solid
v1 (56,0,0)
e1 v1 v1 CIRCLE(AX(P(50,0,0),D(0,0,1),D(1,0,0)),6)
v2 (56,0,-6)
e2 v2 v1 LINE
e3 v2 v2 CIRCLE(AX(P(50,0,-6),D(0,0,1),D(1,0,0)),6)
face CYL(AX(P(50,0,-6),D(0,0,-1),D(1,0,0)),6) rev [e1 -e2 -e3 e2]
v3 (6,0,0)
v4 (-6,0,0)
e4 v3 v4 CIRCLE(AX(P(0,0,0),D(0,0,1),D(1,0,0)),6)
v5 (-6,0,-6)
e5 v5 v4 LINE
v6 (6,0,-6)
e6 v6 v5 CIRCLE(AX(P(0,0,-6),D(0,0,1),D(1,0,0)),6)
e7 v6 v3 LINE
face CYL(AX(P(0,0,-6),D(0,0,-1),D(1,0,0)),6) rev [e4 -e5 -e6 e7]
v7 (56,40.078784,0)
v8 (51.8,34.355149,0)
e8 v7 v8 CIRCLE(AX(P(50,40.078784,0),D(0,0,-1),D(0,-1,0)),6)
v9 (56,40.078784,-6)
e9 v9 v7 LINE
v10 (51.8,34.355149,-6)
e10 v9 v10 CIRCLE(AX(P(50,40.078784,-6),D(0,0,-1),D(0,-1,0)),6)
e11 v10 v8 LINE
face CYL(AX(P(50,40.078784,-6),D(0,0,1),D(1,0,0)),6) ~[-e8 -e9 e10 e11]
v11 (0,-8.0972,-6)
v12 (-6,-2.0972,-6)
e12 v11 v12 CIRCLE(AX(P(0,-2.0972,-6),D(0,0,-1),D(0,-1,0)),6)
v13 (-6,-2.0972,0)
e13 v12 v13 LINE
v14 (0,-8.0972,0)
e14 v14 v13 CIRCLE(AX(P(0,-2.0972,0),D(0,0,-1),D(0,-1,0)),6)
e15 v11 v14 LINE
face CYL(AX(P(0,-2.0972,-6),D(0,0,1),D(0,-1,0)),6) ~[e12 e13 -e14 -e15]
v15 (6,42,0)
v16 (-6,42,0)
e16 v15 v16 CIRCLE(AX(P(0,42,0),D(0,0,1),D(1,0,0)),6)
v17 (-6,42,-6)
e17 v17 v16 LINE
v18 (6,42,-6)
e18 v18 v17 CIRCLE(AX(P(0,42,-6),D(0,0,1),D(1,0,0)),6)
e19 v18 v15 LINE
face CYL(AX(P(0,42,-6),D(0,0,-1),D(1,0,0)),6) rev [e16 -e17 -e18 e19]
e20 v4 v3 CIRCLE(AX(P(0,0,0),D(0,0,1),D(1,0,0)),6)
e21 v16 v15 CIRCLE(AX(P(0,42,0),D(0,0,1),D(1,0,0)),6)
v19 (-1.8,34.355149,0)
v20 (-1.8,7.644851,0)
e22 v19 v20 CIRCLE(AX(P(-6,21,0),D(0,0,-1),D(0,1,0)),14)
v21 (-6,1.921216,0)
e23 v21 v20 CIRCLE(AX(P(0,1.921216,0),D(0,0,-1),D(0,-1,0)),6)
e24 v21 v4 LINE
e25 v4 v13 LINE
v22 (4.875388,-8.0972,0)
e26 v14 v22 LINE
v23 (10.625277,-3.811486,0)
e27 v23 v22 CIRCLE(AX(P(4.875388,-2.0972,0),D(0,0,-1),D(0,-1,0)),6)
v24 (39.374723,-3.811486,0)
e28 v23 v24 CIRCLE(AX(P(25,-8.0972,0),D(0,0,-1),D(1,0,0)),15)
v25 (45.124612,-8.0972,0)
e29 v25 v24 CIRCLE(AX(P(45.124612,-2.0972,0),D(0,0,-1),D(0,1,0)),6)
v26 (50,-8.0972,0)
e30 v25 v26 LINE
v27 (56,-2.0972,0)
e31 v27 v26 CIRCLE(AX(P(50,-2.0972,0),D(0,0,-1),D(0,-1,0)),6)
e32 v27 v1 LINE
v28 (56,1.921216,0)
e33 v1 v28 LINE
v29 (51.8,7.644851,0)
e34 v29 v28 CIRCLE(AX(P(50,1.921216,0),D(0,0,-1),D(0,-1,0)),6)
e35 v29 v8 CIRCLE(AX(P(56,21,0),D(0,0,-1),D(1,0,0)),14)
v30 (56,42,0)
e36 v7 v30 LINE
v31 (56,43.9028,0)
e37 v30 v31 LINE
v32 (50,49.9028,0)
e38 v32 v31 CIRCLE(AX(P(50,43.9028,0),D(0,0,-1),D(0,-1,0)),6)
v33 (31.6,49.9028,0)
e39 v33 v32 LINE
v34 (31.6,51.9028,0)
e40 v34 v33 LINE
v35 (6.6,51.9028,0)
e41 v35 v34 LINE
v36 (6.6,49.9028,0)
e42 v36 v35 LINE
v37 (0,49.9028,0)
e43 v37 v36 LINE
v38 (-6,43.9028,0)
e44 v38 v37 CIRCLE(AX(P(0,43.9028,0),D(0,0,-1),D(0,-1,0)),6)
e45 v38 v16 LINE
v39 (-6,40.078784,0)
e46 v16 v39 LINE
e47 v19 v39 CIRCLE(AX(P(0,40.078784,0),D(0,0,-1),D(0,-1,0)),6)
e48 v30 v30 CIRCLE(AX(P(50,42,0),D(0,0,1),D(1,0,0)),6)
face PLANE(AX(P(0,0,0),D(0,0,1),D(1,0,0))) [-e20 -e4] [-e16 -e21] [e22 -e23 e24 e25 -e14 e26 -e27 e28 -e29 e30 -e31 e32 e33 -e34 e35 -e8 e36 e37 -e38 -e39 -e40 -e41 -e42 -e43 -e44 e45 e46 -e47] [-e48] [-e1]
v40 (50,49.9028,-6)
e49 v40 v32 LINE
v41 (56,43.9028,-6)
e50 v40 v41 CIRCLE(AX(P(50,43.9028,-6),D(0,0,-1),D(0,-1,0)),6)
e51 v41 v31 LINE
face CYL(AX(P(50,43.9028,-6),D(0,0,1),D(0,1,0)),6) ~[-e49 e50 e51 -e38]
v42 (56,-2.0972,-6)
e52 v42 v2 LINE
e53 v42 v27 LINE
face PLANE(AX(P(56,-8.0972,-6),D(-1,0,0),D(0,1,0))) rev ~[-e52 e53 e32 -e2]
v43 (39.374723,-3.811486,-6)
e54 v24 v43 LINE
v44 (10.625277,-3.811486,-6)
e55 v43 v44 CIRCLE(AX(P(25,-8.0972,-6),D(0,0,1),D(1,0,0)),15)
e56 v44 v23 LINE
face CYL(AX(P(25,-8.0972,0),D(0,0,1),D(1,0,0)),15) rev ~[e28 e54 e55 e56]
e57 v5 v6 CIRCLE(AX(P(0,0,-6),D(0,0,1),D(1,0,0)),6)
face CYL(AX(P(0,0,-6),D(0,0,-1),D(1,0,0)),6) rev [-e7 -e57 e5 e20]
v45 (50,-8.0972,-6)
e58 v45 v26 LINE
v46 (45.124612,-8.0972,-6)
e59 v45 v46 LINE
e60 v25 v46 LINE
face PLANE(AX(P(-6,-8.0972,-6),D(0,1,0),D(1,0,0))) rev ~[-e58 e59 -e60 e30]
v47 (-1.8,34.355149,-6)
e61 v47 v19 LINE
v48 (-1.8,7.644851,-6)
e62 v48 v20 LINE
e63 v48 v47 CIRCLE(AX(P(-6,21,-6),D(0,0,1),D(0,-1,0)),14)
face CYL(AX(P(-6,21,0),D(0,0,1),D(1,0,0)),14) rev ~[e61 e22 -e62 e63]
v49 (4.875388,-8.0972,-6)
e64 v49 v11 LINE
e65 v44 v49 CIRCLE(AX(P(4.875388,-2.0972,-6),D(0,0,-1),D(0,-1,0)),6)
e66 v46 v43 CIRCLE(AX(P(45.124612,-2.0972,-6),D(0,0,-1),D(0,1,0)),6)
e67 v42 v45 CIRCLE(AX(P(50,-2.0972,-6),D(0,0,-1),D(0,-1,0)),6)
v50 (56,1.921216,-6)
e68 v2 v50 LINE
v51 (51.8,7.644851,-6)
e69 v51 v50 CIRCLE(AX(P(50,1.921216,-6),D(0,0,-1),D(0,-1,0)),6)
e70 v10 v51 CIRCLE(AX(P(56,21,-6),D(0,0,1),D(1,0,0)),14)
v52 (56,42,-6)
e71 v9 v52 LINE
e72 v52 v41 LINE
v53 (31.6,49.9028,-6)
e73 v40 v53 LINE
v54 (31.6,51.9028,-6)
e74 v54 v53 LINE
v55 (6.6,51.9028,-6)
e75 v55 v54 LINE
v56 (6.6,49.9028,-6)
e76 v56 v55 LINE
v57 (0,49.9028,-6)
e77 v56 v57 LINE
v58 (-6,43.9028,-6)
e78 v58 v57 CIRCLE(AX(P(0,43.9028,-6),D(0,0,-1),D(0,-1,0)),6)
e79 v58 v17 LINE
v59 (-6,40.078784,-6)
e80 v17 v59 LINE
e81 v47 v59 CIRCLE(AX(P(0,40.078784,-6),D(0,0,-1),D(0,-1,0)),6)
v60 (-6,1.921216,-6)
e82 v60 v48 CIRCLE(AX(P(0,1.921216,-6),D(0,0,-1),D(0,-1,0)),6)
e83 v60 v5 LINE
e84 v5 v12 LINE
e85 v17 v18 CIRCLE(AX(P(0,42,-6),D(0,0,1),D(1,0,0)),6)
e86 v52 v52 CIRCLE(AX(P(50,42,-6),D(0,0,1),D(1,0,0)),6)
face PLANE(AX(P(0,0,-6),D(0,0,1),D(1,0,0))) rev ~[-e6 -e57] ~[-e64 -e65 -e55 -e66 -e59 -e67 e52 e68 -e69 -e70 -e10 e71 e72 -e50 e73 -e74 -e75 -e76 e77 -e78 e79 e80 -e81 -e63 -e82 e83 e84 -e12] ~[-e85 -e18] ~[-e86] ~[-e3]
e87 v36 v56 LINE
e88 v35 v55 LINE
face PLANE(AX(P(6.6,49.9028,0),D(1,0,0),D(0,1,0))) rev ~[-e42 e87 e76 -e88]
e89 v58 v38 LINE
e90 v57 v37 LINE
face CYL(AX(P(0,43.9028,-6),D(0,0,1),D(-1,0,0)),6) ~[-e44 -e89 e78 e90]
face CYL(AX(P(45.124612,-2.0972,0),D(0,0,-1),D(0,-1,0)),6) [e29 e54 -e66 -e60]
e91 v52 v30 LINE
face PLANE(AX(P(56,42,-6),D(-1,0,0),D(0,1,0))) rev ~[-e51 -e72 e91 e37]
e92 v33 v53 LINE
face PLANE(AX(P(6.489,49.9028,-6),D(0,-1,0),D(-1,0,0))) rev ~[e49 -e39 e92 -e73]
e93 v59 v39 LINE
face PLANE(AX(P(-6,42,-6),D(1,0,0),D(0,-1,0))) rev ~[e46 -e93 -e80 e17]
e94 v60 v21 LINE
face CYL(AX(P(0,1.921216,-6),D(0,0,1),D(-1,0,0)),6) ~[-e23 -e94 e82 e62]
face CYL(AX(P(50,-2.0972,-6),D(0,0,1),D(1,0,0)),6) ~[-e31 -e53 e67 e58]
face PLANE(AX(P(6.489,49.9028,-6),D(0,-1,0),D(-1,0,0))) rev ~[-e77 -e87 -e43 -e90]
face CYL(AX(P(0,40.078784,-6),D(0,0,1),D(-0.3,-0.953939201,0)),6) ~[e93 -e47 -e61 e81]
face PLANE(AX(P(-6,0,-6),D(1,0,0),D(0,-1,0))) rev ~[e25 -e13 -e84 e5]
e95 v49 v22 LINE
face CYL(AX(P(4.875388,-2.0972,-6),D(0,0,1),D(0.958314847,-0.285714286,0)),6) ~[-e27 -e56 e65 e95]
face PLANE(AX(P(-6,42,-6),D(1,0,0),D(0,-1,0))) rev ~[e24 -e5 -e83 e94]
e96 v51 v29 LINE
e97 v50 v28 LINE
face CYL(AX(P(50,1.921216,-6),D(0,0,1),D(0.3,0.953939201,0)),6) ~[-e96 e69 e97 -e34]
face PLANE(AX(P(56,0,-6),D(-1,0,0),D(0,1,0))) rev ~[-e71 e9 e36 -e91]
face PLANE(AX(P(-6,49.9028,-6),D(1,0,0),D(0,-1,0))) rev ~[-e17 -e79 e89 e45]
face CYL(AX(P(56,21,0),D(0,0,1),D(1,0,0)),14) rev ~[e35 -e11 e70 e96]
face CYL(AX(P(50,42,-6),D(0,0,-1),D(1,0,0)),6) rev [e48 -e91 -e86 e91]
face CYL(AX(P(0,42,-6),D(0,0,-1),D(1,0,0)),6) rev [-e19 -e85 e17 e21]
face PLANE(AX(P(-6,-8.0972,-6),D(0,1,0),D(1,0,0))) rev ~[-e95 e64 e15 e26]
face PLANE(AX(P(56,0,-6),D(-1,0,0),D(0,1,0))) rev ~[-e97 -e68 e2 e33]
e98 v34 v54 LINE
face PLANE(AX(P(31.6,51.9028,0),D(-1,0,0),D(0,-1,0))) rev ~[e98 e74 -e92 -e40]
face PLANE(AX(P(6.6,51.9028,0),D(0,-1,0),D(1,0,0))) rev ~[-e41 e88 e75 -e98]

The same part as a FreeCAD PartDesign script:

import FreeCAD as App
import Part
import Sketcher

V = App.Vector
Q = App.Units.Quantity


def edges_at(feature, points):
    """Names of the edges that pass closest to the given points."""
    edges = feature.Shape.Edges
    near = lambda p: min(range(len(edges)), key=lambda i: edges[i].distToShape(Part.Vertex(*p))[0])
    return sorted({f"Edge{near(p) + 1}" for p in points})

doc = App.newDocument("Part")
body = doc.addObject("PartDesign::Body", "Body")

sketch1 = body.newObject("Sketcher::SketchObject", "Sketch")
sketch1.AttachmentSupport = (doc.getObject("XY_Plane"), [""])
sketch1.MapMode = "FlatFace"
sketch1.AttachmentOffset = App.Placement(V(0, 0, -6), App.Rotation())
sketch1.addGeometry(Part.LineSegment(V(-6, 42, 0), V(-6, 0, 0)), False)
sketch1.addGeometry(Part.LineSegment(V(-6, 0, 0), V(-6, -8, 0)), False)
sketch1.addGeometry(Part.LineSegment(V(-6, -8, 0), V(56, -8, 0)), False)
sketch1.addGeometry(Part.LineSegment(V(56, -8, 0), V(56, 0, 0)), False)
sketch1.addGeometry(Part.LineSegment(V(56, 0, 0), V(56, 42, 0)), False)
sketch1.addGeometry(Part.LineSegment(V(56, 42, 0), V(56, 50, 0)), False)
sketch1.addGeometry(Part.LineSegment(V(56, 50, 0), V(-6, 50, 0)), False)
sketch1.addGeometry(Part.LineSegment(V(-6, 50, 0), V(-6, 42, 0)), False)
sketch1.addGeometry(Part.Circle(V(0, 42, 0), V(0, 0, 1), 6), False)
sketch1.addGeometry(Part.Circle(V(50, 0, 0), V(0, 0, 1), 6), False)
sketch1.addGeometry(Part.Circle(V(50, 42, 0), V(0, 0, 1), 6), False)
sketch1.addGeometry(Part.Circle(V(0, 0, 0), V(0, 0, 1), 6), False)
sketch1.addConstraint(Sketcher.Constraint("Coincident", 0, 2, 1, 1))
sketch1.addConstraint(Sketcher.Constraint("Coincident", 1, 2, 2, 1))
sketch1.addConstraint(Sketcher.Constraint("Coincident", 2, 2, 3, 1))
sketch1.addConstraint(Sketcher.Constraint("Coincident", 3, 2, 4, 1))
sketch1.addConstraint(Sketcher.Constraint("Coincident", 4, 2, 5, 1))
sketch1.addConstraint(Sketcher.Constraint("Coincident", 5, 2, 6, 1))
sketch1.addConstraint(Sketcher.Constraint("Coincident", 6, 2, 7, 1))
sketch1.addConstraint(Sketcher.Constraint("Coincident", 7, 2, 0, 1))
sketch1.addConstraint(Sketcher.Constraint("Vertical", 0))
sketch1.addConstraint(Sketcher.Constraint("Vertical", 1))
sketch1.addConstraint(Sketcher.Constraint("Horizontal", 2))
sketch1.addConstraint(Sketcher.Constraint("Vertical", 3))
sketch1.addConstraint(Sketcher.Constraint("Vertical", 4))
sketch1.addConstraint(Sketcher.Constraint("Vertical", 5))
sketch1.addConstraint(Sketcher.Constraint("Horizontal", 6))
sketch1.addConstraint(Sketcher.Constraint("Vertical", 7))
sketch1.addConstraint(Sketcher.Constraint("Coincident", 11, 3, -1, 1))
sketch1.addConstraint(Sketcher.Constraint("Equal", 8, 9))
sketch1.addConstraint(Sketcher.Constraint("Equal", 9, 10))
sketch1.addConstraint(Sketcher.Constraint("Equal", 10, 11))
sketch1.addConstraint(Sketcher.Constraint("PointOnObject", 8, 3, -2))
sketch1.addConstraint(Sketcher.Constraint("PointOnObject", 9, 3, -1))
sketch1.addConstraint(Sketcher.Constraint("PointOnObject", 0, 2, -1))
sketch1.addConstraint(Sketcher.Constraint("PointOnObject", 3, 2, -1))
sketch1.addConstraint(Sketcher.Constraint("Horizontal", 8, 3, 10, 3))
sketch1.addConstraint(Sketcher.Constraint("Horizontal", 10, 3, 4, 2))
sketch1.addConstraint(Sketcher.Constraint("Horizontal", 4, 2, 7, 2))
sketch1.addConstraint(Sketcher.Constraint("Vertical", 9, 3, 10, 3))
sketch1.addConstraint(Sketcher.Constraint("Diameter", 8, Q("12 mm")))
sketch1.addConstraint(Sketcher.Constraint("DistanceX", 2, 1, 2, 2, Q("62 mm")))
sketch1.addConstraint(Sketcher.Constraint("DistanceY", 0, 2, 0, 1, Q("42 mm")))
sketch1.addConstraint(Sketcher.Constraint("DistanceX", -1, 1, 9, 3, Q("50 mm")))
sketch1.addConstraint(Sketcher.Constraint("DistanceX", 0, 2, -1, 1, Q("6 mm")))
sketch1.addConstraint(Sketcher.Constraint("DistanceY", 1, 2, 6, 2, Q("58 mm")))
sketch1.addConstraint(Sketcher.Constraint("DistanceY", 1, 2, 1, 1, Q("8.0972 mm")))
pad1 = body.newObject("PartDesign::Pad", "Pad")
pad1.Profile = sketch1
pad1.Length = 6

sketch2 = body.newObject("Sketcher::SketchObject", "Sketch001")
sketch2.AttachmentSupport = (doc.getObject("XY_Plane"), [""])
sketch2.MapMode = "FlatFace"
sketch2.addGeometry(Part.Circle(V(-6, 21, 0), V(0, 0, 1), 14), False)
sketch2.addGeometry(Part.Circle(V(56, 21, 0), V(0, 0, 1), 14), False)
sketch2.addGeometry(Part.Circle(V(25, -8, 0), V(0, 0, 1), 15), False)
sketch2.addConstraint(Sketcher.Constraint("Equal", 0, 1))
sketch2.addConstraint(Sketcher.Constraint("Horizontal", 0, 3, 1, 3))
sketch2.addConstraint(Sketcher.Constraint("Diameter", 0, Q("28 mm")))
sketch2.addConstraint(Sketcher.Constraint("Diameter", 2, Q("30 mm")))
sketch2.addConstraint(Sketcher.Constraint("DistanceX", 0, 3, -1, 1, Q("6 mm")))
sketch2.addConstraint(Sketcher.Constraint("DistanceY", -1, 1, 0, 3, Q("21 mm")))
sketch2.addConstraint(Sketcher.Constraint("DistanceX", -1, 1, 1, 3, Q("56 mm")))
sketch2.addConstraint(Sketcher.Constraint("DistanceX", -1, 1, 2, 3, Q("25 mm")))
sketch2.addConstraint(Sketcher.Constraint("DistanceY", 2, 3, -1, 1, Q("8.0972 mm")))
pocket1 = body.newObject("PartDesign::Pocket", "Pocket")
pocket1.Profile = sketch2
pocket1.Length = 6
doc.recompute()

fillet = body.newObject("PartDesign::Fillet", "Fillet")
fillet.Base = (pocket1, edges_at(pocket1, [
    (56, 35, -3),
    (56, 7, -3),
    (56, 49.903, -3),
    (56, -8.097, -3),
    (40, -8.097, -3),
    (10, -8.097, -3),
    (-6, -8.097, -3),
    (-6, 7, -3),
    (-6, 35, -3),
    (-6, 49.903, -3),
]))
fillet.Radius = 6

sketch3 = body.newObject("Sketcher::SketchObject", "Sketch002")
sketch3.AttachmentSupport = (doc.getObject("XY_Plane"), [""])
sketch3.MapMode = "FlatFace"
sketch3.addGeometry(Part.LineSegment(V(6.6, 51.9, 0), V(6.6, 49.9, 0)), False)
sketch3.addGeometry(Part.LineSegment(V(6.6, 49.9, 0), V(31.6, 49.9, 0)), False)
sketch3.addGeometry(Part.LineSegment(V(31.6, 49.9, 0), V(31.6, 51.9, 0)), False)
sketch3.addGeometry(Part.LineSegment(V(31.6, 51.9, 0), V(6.6, 51.9, 0)), False)
sketch3.addConstraint(Sketcher.Constraint("Coincident", 0, 2, 1, 1))
sketch3.addConstraint(Sketcher.Constraint("Coincident", 1, 2, 2, 1))
sketch3.addConstraint(Sketcher.Constraint("Coincident", 2, 2, 3, 1))
sketch3.addConstraint(Sketcher.Constraint("Coincident", 3, 2, 0, 1))
sketch3.addConstraint(Sketcher.Constraint("Vertical", 0))
sketch3.addConstraint(Sketcher.Constraint("Horizontal", 1))
sketch3.addConstraint(Sketcher.Constraint("Vertical", 2))
sketch3.addConstraint(Sketcher.Constraint("Horizontal", 3))
sketch3.addConstraint(Sketcher.Constraint("DistanceY", 0, 2, 0, 1, Q("2 mm")))
sketch3.addConstraint(Sketcher.Constraint("DistanceX", 1, 1, 1, 2, Q("25 mm")))
sketch3.addConstraint(Sketcher.Constraint("DistanceX", -1, 1, 0, 2, Q("6.6 mm")))
sketch3.addConstraint(Sketcher.Constraint("DistanceY", -1, 1, 0, 2, Q("49.9028 mm")))
pad2 = body.newObject("PartDesign::Pad", "Pad001")
pad2.Profile = sketch3
pad2.Length = 6
pad2.Reversed = True

doc.recompute()
